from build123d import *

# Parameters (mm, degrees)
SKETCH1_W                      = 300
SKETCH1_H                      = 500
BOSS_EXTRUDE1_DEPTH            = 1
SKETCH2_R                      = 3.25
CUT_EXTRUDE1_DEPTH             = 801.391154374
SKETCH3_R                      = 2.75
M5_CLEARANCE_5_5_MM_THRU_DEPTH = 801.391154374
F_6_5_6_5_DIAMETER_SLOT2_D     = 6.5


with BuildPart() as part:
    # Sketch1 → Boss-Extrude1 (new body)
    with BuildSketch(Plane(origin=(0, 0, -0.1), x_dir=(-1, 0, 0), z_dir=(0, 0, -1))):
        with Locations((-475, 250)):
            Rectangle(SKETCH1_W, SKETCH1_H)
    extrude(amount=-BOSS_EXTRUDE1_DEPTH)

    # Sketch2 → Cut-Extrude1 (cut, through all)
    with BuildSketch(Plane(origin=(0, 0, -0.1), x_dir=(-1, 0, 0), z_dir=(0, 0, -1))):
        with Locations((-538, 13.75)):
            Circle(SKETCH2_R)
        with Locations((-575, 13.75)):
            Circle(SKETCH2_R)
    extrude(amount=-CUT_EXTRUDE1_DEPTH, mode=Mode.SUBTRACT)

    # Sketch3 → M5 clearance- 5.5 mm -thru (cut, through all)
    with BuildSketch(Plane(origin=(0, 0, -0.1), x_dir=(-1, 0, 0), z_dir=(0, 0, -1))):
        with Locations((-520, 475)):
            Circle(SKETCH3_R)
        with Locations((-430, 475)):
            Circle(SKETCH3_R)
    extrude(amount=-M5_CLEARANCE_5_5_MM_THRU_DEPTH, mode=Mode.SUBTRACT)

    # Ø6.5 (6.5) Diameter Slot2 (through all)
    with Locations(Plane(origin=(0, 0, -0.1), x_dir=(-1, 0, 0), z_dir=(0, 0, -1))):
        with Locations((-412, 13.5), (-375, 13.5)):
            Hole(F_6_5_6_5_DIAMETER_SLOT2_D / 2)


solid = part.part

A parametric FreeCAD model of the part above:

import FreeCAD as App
import Part
import Sketcher
from FreeCAD import Vector
Q = App.Units.Quantity


def add_polygon(sketch, points):
    """Adds a closed chain of lines whose ends are joined by coincident constraints."""
    first, n = sketch.GeometryCount, len(points)
    for a, b in zip(points, points[1:] + points[:1]):
        sketch.addGeometry(Part.LineSegment(App.Vector(*a, 0), App.Vector(*b, 0)), False)
    for i in range(n):
        sketch.addConstraint(Sketcher.Constraint("Coincident", first + i, 2, first + (i + 1) % n, 1))

doc = App.newDocument("Part")
params = doc.addObject("Spreadsheet::Sheet", "Params")
for row, (alias, value) in enumerate([
    ("sketch1_width", "300 mm"),
    ("sketch1_height", "500 mm"),
    ("pad1_length", "1 mm"),
    ("sketch2_diameter", "6.5 mm"),
    ("sketch3_diameter", "5.5 mm"),
    ("sketch4_diameter", "6.5 mm"),
    ("hole_diameter", "6.5 mm"),
], start=1):
    params.set(f"A{row}", alias)
    params.set(f"B{row}", "=" + value)
    params.setAlias(f"B{row}", alias)

body = doc.addObject("PartDesign::Body", "Body")

# Sketch on XY plane
sketch1 = body.newObject("Sketcher::SketchObject", "Sketch")
sketch1.AttachmentSupport = (doc.getObject("XY_Plane"), [""])
sketch1.MapMode = "FlatFace"
sketch1.AttachmentOffset = App.Placement(Vector(0, 0, -0.1), App.Rotation())
add_polygon(sketch1, [(625, 500), (625, 0), (325, 0), (325, 500)])  # lines 0-3
sketch1.addConstraint([
    Sketcher.Constraint("Vertical", 0),
    Sketcher.Constraint("Horizontal", 1),
    Sketcher.Constraint("Vertical", 2),
    Sketcher.Constraint("Horizontal", 3),
    Sketcher.Constraint("PointOnObject", 0, 2, -1),
    Sketcher.Constraint("DistanceX", 1, 2, 1, 1, Q("300 mm")),
    Sketcher.Constraint("DistanceY", 0, 2, 0, 1, Q("500 mm")),
    Sketcher.Constraint("DistanceX", -1, 1, 0, 2, Q("625 mm")),
])
sketch1.setExpression("Constraints[9]", "Params.sketch1_width")
sketch1.setExpression("Constraints[10]", "Params.sketch1_height")
pad1 = body.newObject("PartDesign::Pad", "Pad")
pad1.Profile = sketch1
pad1.setExpression("Length", "Params.pad1_length")

# Sketch on XY plane
sketch2 = body.newObject("Sketcher::SketchObject", "Sketch001")
sketch2.AttachmentSupport = (doc.getObject("XY_Plane"), [""])
sketch2.MapMode = "FlatFace"
sketch2.AttachmentOffset = App.Placement(Vector(0, 0, -0.1), App.Rotation())
sketch2.addGeometry([
    Part.Circle(Vector(538, 13.75, 0), Vector(0, 0, 1), 3.25),
    Part.Circle(Vector(575, 13.75, 0), Vector(0, 0, 1), 3.25),
], False)
sketch2.addConstraint([
    Sketcher.Constraint("Equal", 0, 1),
    Sketcher.Constraint("Horizontal", 0, 3, 1, 3),
    Sketcher.Constraint("Diameter", 0, Q("6.5 mm")),
    Sketcher.Constraint("DistanceX", -1, 1, 0, 3, Q("538 mm")),
    Sketcher.Constraint("DistanceX", -1, 1, 1, 3, Q("575 mm")),
    Sketcher.Constraint("DistanceY", -1, 1, 0, 3, Q("13.75 mm")),
])
sketch2.setExpression("Constraints[2]", "Params.sketch2_diameter")
pocket1 = body.newObject("PartDesign::Pocket", "Pocket")
pocket1.Profile = sketch2
pocket1.Type = "ThroughAll"
pocket1.Reversed = True

# Sketch on XY plane
sketch3 = body.newObject("Sketcher::SketchObject", "Sketch002")
sketch3.AttachmentSupport = (doc.getObject("XY_Plane"), [""])
sketch3.MapMode = "FlatFace"
sketch3.AttachmentOffset = App.Placement(Vector(0, 0, -0.1), App.Rotation())
sketch3.addGeometry([
    Part.Circle(Vector(520, 475, 0), Vector(0, 0, 1), 2.75),
    Part.Circle(Vector(430, 475, 0), Vector(0, 0, 1), 2.75),
], False)
sketch3.addConstraint([
    Sketcher.Constraint("Equal", 0, 1),
    Sketcher.Constraint("Horizontal", 0, 3, 1, 3),
    Sketcher.Constraint("Diameter", 0, Q("5.5 mm")),
    Sketcher.Constraint("DistanceX", -1, 1, 0, 3, Q("520 mm")),
    Sketcher.Constraint("DistanceY", -1, 1, 0, 3, Q("475 mm")),
    Sketcher.Constraint("DistanceX", -1, 1, 1, 3, Q("430 mm")),
])
sketch3.setExpression("Constraints[2]", "Params.sketch3_diameter")
pocket2 = body.newObject("PartDesign::Pocket", "Pocket001")
pocket2.Profile = sketch3
pocket2.Type = "ThroughAll"
pocket2.Reversed = True

# Sketch on XY plane
sketch4 = body.newObject("Sketcher::SketchObject", "Sketch003")
sketch4.AttachmentSupport = (doc.getObject("XY_Plane"), [""])
sketch4.MapMode = "FlatFace"
sketch4.AttachmentOffset = App.Placement(Vector(0, 0, -0.1), App.Rotation())
sketch4.addGeometry([
    Part.Circle(Vector(412, 13.5, 0), Vector(0, 0, 1), 3.25),
    Part.Circle(Vector(375, 13.5, 0), Vector(0, 0, 1), 3.25),
], False)
sketch4.addConstraint([
    Sketcher.Constraint("Equal", 0, 1),
    Sketcher.Constraint("Horizontal", 0, 3, 1, 3),
    Sketcher.Constraint("Diameter", 0, Q("6.5 mm")),
    Sketcher.Constraint("DistanceX", -1, 1, 0, 3, Q("412 mm")),
    Sketcher.Constraint("DistanceX", -1, 1, 1, 3, Q("375 mm")),
    Sketcher.Constraint("DistanceY", -1, 1, 0, 3, Q("13.5 mm")),
])
sketch4.setExpression("Constraints[2]", "Params.sketch4_diameter")
doc.recompute()
hole = body.newObject("PartDesign::Hole", "Hole")
hole.Profile = sketch4
hole.ThreadType = "None"
hole.setExpression("Diameter", "Params.hole_diameter")
hole.DepthType = "ThroughAll"
hole.Reversed = True

doc.recompute()
